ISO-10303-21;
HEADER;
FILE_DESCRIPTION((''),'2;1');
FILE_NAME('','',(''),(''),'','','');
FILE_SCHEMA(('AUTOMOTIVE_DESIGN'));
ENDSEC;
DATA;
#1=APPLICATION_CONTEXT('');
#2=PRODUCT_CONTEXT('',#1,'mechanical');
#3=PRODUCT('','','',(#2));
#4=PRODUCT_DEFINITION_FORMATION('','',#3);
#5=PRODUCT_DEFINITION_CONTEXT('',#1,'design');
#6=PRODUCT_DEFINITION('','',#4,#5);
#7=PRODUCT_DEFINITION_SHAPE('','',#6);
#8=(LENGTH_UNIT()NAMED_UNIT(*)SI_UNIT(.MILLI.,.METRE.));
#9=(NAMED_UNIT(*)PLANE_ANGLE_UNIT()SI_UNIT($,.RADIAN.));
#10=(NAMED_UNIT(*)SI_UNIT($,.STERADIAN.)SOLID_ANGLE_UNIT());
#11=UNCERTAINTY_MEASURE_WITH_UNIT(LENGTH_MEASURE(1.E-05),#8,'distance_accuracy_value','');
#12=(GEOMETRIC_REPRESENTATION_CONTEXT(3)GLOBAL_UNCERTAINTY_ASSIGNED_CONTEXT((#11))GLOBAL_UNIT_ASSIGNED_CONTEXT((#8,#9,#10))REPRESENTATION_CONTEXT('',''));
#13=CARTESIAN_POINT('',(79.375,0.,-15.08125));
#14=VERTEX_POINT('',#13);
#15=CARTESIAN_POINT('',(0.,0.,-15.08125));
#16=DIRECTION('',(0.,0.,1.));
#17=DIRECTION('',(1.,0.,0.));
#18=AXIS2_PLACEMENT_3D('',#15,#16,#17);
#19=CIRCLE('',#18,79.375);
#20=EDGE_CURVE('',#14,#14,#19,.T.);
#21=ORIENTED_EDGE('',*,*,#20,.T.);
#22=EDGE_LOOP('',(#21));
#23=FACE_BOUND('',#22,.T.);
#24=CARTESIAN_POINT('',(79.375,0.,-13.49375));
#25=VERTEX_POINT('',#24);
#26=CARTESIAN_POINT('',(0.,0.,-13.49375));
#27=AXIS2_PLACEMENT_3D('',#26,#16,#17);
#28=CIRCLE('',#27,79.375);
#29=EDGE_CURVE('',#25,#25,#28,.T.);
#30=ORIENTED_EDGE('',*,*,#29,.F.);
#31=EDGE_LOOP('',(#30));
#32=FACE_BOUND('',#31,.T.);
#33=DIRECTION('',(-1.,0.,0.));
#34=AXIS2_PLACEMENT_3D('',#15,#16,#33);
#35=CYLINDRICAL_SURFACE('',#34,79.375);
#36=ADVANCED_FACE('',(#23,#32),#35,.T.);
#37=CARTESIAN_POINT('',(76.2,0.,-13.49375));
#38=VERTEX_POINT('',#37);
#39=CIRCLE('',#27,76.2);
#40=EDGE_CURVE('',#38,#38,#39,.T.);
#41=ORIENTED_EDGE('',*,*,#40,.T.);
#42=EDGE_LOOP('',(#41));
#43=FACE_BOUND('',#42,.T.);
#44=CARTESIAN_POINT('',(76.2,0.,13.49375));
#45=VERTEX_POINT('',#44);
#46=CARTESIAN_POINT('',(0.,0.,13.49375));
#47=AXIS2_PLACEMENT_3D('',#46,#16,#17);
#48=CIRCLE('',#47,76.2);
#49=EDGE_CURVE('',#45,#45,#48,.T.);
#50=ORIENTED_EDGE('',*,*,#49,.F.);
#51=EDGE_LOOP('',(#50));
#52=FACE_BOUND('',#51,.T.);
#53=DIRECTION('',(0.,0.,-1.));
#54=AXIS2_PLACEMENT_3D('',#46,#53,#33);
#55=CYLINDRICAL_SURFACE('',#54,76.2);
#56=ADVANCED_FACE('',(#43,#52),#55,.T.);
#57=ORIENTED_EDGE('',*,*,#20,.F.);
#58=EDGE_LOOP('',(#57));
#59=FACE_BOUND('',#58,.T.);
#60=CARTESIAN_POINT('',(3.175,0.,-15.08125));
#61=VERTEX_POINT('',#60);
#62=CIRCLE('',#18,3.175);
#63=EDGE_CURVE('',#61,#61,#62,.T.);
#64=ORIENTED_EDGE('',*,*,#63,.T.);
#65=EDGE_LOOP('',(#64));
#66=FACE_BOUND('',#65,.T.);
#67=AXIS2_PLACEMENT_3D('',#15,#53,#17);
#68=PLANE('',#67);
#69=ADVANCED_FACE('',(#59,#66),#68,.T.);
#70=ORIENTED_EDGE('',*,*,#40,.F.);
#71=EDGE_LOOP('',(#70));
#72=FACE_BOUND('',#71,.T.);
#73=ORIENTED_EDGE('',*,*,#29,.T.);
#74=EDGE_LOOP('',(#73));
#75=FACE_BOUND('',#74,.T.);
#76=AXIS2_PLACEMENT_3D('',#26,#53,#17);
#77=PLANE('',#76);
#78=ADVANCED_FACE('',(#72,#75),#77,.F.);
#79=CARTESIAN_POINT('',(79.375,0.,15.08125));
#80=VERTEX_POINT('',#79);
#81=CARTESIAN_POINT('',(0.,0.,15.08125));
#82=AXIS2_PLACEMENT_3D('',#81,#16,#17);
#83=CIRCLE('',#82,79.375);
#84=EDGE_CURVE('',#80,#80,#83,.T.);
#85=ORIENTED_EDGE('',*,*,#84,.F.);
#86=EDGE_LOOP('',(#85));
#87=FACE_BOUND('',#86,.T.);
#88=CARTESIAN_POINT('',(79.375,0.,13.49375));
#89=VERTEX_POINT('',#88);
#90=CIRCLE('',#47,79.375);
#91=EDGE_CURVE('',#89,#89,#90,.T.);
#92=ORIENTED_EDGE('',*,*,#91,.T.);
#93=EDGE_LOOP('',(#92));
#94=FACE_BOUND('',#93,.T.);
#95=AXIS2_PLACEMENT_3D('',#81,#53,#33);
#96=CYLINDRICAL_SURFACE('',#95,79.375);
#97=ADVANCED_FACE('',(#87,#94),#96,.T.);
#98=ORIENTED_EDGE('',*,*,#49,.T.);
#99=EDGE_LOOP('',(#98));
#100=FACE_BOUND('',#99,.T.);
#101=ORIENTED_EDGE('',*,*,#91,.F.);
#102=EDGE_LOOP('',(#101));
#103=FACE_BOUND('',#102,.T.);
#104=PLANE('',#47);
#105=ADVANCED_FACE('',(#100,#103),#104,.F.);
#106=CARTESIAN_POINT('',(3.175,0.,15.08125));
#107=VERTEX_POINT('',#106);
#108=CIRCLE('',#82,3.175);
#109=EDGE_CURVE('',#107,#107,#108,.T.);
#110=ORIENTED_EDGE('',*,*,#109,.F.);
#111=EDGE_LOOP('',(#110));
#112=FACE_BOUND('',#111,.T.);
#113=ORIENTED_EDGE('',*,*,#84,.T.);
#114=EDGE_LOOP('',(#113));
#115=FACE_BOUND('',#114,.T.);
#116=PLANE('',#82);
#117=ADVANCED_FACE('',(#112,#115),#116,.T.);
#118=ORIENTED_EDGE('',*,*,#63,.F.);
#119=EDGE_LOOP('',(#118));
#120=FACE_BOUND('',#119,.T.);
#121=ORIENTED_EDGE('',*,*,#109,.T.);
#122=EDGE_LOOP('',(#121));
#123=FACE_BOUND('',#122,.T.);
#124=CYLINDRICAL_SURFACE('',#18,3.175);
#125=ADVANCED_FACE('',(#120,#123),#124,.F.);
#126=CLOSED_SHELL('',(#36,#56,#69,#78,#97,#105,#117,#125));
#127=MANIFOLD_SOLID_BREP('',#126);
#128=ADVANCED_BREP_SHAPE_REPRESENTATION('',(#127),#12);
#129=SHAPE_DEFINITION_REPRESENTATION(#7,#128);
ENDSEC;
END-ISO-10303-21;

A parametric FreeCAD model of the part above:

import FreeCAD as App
import Part
import Sketcher
from FreeCAD import Vector
Q = App.Units.Quantity

doc = App.newDocument("Part")
body = doc.addObject("PartDesign::Body", "Body")

# Sketch on XY plane
sketch1 = doc.addObject("Sketcher::SketchObject", "Sketch")
body.addObject(sketch1)
sketch1.AttachmentSupport = (doc.XY_Plane, [""])
sketch1.MapMode = "FlatFace"
sketch1.addGeometry(Part.Circle(Vector(0, 0, 0), Vector(0, 0, 1), 76), False)
sketch1.addConstraint(Sketcher.Constraint("Coincident", 0, 3, -1, 1))
sketch1.addConstraint(Sketcher.Constraint("Diameter", 0, Q("6 in")))
pad1 = doc.addObject("PartDesign::Pad", "Pad")
body.addObject(pad1)
pad1.Profile = sketch1
pad1.Length = Q("0.53125 in")

# Sketch on XY plane
sketch2 = doc.addObject("Sketcher::SketchObject", "Sketch001")
body.addObject(sketch2)
sketch2.AttachmentSupport = (doc.XY_Plane, [""])
sketch2.MapMode = "FlatFace"
sketch2.AttachmentOffset = App.Placement(Vector(0, 0, 0.53125 * 25.4), App.Rotation())
sketch2.addGeometry(Part.Circle(Vector(0, 0, 0), Vector(0, 0, 1), 79), False)
sketch2.addConstraint(Sketcher.Constraint("Coincident", 0, 3, -1, 1))
sketch2.addConstraint(Sketcher.Constraint("Diameter", 0, Q("6.25 in")))
pad2 = doc.addObject("PartDesign::Pad", "Pad001")
body.addObject(pad2)
pad2.Profile = sketch2
pad2.Length = Q("0.0625 in")
body2 = doc.addObject("PartDesign::Body", "Body001")
doc.recompute()

body2.BaseFeature = body
doc.recompute()

mirroring = doc.addObject("Part::Mirroring", "Mirroring")
mirroring.Source = body
mirroring.Base = Vector(0, 0, 0)
mirroring.Normal = Vector(0, 0, 1)
body3 = doc.addObject("PartDesign::Body", "Body002")
body3.BaseFeature = mirroring
boolean = doc.addObject("PartDesign::Boolean", "Boolean")
body2.addObject(boolean)
boolean.Type = "Fuse"
boolean.addObjects([body3])
doc.recompute()

# Sketch on XY plane
sketch3 = doc.addObject("Sketcher::SketchObject", "Sketch002")
body2.addObject(sketch3)
sketch3.AttachmentSupport = (doc.getObject("XY_Plane001"), [""])
sketch3.MapMode = "FlatFace"
sketch3.AttachmentOffset = App.Placement(Vector(0, 0, 0.59375 * 25.4), App.Rotation())
sketch3.addGeometry(Part.Circle(Vector(0, 0, 0), Vector(0, 0, 1), 3.2), False)
sketch3.addConstraint(Sketcher.Constraint("Coincident", 0, 3, -1, 1))
sketch3.addConstraint(Sketcher.Constraint("Diameter", 0, Q("0.25 in")))
pocket1 = doc.addObject("PartDesign::Pocket", "Pocket")
body2.addObject(pocket1)
pocket1.Profile = sketch3
pocket1.Type = "ThroughAll"
mirroring.Visibility = False

doc.recompute()
